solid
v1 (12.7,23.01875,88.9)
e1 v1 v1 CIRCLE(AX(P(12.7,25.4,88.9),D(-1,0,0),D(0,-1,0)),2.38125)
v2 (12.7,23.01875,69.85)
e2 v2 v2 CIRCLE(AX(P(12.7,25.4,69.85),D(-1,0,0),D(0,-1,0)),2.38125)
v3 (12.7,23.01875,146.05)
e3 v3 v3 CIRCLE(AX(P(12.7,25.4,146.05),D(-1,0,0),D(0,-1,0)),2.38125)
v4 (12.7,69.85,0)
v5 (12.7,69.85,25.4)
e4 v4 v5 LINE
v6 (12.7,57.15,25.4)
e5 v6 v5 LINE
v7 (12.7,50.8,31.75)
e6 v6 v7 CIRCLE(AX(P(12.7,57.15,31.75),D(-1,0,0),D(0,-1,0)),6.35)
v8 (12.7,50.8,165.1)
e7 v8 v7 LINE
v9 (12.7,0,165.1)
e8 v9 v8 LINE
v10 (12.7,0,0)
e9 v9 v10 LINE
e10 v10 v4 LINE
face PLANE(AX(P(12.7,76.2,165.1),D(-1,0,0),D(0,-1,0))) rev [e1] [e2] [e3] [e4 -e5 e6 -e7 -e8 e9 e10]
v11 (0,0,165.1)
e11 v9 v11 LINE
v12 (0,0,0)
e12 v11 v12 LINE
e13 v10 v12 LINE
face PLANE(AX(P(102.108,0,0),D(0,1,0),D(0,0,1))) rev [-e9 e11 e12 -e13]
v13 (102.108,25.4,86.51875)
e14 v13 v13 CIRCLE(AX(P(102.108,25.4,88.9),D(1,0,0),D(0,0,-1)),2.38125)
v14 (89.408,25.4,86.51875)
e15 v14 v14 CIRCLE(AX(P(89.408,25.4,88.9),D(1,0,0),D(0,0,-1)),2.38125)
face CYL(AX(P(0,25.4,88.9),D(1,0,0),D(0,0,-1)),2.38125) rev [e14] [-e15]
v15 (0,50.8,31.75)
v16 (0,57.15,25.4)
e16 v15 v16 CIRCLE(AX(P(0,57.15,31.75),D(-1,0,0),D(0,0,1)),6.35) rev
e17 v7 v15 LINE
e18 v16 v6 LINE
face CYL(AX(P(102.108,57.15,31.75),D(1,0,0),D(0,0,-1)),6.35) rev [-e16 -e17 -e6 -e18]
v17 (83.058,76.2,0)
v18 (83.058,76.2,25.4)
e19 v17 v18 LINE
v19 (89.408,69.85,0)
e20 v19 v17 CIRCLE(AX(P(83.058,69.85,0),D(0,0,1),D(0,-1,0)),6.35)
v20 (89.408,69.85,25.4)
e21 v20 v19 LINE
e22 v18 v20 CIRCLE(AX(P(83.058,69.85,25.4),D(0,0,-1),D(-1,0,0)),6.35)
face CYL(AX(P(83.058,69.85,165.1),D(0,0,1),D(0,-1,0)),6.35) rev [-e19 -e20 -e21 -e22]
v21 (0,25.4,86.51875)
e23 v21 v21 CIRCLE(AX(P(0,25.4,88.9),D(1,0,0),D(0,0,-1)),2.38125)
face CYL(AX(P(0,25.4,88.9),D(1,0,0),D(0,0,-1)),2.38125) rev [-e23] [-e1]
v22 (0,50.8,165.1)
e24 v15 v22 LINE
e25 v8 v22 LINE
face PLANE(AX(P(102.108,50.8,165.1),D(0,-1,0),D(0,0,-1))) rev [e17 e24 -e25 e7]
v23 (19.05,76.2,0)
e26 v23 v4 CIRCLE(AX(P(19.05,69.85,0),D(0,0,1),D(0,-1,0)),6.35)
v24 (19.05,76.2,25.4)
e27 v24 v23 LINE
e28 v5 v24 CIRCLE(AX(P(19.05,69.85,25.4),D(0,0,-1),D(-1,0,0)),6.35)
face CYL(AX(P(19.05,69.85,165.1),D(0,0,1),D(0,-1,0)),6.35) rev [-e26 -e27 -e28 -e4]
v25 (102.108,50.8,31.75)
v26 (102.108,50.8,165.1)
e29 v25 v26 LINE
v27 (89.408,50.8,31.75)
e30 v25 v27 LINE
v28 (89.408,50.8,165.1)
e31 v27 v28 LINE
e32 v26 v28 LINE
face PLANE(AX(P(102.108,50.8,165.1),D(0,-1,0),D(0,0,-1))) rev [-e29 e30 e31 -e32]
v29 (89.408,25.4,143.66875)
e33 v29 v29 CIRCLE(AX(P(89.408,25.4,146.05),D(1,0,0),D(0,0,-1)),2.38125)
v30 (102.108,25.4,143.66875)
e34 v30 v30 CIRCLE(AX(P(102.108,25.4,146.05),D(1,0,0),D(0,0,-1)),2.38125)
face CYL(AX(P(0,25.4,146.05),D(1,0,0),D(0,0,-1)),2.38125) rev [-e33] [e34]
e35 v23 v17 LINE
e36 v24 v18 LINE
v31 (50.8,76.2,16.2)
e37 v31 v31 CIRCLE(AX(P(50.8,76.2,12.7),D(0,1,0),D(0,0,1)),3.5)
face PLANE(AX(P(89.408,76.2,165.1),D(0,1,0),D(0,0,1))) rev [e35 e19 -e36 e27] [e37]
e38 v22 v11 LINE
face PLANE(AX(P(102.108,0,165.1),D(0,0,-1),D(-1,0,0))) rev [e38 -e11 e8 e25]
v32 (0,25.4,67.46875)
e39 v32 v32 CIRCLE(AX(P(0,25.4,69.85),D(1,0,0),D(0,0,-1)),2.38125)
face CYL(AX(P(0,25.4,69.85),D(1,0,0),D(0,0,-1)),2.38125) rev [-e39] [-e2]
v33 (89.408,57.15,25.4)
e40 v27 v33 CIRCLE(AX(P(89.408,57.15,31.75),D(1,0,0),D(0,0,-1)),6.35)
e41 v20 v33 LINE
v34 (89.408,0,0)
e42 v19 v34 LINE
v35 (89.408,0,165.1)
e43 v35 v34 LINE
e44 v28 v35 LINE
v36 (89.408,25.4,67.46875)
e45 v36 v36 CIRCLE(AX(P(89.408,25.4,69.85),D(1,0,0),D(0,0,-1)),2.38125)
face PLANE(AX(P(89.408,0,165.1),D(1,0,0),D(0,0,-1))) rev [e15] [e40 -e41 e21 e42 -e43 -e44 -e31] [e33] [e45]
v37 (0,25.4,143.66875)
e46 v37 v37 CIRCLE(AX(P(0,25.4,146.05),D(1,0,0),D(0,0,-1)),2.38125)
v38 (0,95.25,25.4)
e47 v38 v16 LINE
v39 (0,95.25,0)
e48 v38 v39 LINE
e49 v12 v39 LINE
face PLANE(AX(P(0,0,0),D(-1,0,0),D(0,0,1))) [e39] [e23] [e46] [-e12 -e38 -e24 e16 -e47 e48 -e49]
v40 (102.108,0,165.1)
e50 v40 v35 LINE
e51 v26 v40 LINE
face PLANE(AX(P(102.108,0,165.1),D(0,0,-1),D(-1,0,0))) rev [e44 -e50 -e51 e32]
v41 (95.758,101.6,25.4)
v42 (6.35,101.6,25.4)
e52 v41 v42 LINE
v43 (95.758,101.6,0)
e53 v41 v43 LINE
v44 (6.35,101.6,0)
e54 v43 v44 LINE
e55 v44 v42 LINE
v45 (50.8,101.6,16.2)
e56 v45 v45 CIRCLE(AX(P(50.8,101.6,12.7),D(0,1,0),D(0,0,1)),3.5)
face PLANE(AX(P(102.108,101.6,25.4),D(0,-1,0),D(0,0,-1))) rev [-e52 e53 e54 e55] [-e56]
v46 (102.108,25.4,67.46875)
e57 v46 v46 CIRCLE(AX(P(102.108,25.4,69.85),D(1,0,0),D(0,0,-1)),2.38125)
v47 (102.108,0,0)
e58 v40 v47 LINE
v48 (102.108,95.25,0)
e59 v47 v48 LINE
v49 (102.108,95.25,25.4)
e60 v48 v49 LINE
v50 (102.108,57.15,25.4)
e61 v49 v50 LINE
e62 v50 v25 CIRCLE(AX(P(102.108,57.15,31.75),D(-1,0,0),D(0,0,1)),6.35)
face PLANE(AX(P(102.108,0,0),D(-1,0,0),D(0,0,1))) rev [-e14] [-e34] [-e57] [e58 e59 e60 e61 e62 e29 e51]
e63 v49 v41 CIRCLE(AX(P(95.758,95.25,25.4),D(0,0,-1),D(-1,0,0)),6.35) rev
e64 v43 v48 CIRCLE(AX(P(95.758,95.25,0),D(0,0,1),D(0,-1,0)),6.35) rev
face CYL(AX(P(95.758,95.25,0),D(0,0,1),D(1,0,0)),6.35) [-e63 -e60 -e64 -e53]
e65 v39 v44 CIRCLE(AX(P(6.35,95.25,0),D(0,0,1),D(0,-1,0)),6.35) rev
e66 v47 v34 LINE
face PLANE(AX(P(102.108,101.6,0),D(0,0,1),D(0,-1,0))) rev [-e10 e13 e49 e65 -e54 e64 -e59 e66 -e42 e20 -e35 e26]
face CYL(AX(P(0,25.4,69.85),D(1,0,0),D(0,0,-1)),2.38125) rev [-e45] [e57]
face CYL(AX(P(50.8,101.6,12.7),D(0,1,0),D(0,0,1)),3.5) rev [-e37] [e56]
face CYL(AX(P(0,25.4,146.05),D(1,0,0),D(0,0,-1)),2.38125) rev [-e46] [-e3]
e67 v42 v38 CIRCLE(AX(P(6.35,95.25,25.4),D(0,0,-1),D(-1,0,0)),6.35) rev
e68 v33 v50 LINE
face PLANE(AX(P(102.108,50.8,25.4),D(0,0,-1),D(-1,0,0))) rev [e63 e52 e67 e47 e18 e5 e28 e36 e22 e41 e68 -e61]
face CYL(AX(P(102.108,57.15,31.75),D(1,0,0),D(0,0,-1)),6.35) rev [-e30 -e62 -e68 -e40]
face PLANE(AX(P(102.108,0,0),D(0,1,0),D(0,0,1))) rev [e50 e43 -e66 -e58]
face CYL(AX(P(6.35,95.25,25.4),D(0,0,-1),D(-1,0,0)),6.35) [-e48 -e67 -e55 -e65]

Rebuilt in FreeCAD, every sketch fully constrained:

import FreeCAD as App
import Part
import Sketcher
Q = App.Units.Quantity


def edges_at(feature, points):
    """Names of the edges that pass closest to the given points."""
    edges = feature.Shape.Edges
    near = lambda p: min(range(len(edges)), key=lambda i: edges[i].distToShape(Part.Vertex(*p))[0])
    return sorted({f"Edge{near(p) + 1}" for p in points})

doc = App.newDocument("Part")
params = doc.addObject("Spreadsheet::Sheet", "Params")
for row, (alias, value) in enumerate([
    ("sketch1_width", "4 in"),
    ("sketch1_height", "1 in"),
    ("sketch1_height2", "6.5 in"),
    ("pad1_length", "4.02 in"),
    ("sketch2_height", "3 in"),
    ("sketch2_width", "3.02 in"),
    ("hole_diameter", "7 mm"),
    ("fillet_radius", "0.25 in"),
    ("sketch4_diameter", "0.1875 in"),
], start=1):
    params.set(f"A{row}", alias)
    params.set(f"B{row}", "=" + value)
    params.setAlias(f"B{row}", alias)

body = doc.addObject("PartDesign::Body", "Body")

sketch1 = body.newObject("Sketcher::SketchObject", "Sketch")
sketch1.AttachmentSupport = (doc.getObject("YZ_Plane"), [""])
sketch1.MapMode = "FlatFace"
sketch1.addGeometry(Part.LineSegment(App.Vector(0, 165, 0), App.Vector(0, 0, 0)), False)
sketch1.addGeometry(Part.LineSegment(App.Vector(0, 0, 0), App.Vector(102, 0, 0)), False)
sketch1.addGeometry(Part.LineSegment(App.Vector(102, 0, 0), App.Vector(102, 25, 0)), False)
sketch1.addGeometry(Part.LineSegment(App.Vector(102, 25, 0), App.Vector(51, 25, 0)), False)
sketch1.addGeometry(Part.LineSegment(App.Vector(51, 25, 0), App.Vector(51, 165, 0)), False)
sketch1.addGeometry(Part.LineSegment(App.Vector(51, 165, 0), App.Vector(0, 165, 0)), False)
sketch1.addConstraint(Sketcher.Constraint("Coincident", 0, 2, 1, 1))
sketch1.addConstraint(Sketcher.Constraint("Coincident", 1, 2, 2, 1))
sketch1.addConstraint(Sketcher.Constraint("Coincident", 2, 2, 3, 1))
sketch1.addConstraint(Sketcher.Constraint("Coincident", 3, 2, 4, 1))
sketch1.addConstraint(Sketcher.Constraint("Coincident", 4, 2, 5, 1))
sketch1.addConstraint(Sketcher.Constraint("Coincident", 5, 2, 0, 1))
sketch1.addConstraint(Sketcher.Constraint("Vertical", 0))
sketch1.addConstraint(Sketcher.Constraint("Horizontal", 1))
sketch1.addConstraint(Sketcher.Constraint("Vertical", 2))
sketch1.addConstraint(Sketcher.Constraint("Horizontal", 3))
sketch1.addConstraint(Sketcher.Constraint("Vertical", 4))
sketch1.addConstraint(Sketcher.Constraint("Horizontal", 5))
sketch1.addConstraint(Sketcher.Constraint("Coincident", 0, 2, -1, 1))
sketch1.addConstraint(Sketcher.Constraint("Equal", 3, 5))
sketch1.addConstraint(Sketcher.Constraint("DistanceX", 1, 1, 1, 2, Q("4 in")))
sketch1.addConstraint(Sketcher.Constraint("DistanceY", 2, 1, 2, 2, Q("1 in")))
sketch1.addConstraint(Sketcher.Constraint("DistanceY", 0, 2, 0, 1, Q("6.5 in")))
sketch1.setExpression("Constraints[14]", "Params.sketch1_width")
sketch1.setExpression("Constraints[15]", "Params.sketch1_height")
sketch1.setExpression("Constraints[16]", "Params.sketch1_height2")
pad1 = body.newObject("PartDesign::Pad", "Pad")
pad1.Profile = sketch1
pad1.setExpression("Length", "Params.pad1_length")

sketch2 = body.newObject("Sketcher::SketchObject", "Sketch001")
sketch2.AttachmentSupport = (doc.getObject("XY_Plane"), [""])
sketch2.MapMode = "FlatFace"
sketch2.addGeometry(Part.LineSegment(App.Vector(89, 76, 0), App.Vector(89, 0, 0)), False)
sketch2.addGeometry(Part.LineSegment(App.Vector(89, 0, 0), App.Vector(13, 0, 0)), False)
sketch2.addGeometry(Part.LineSegment(App.Vector(13, 0, 0), App.Vector(13, 76, 0)), False)
sketch2.addGeometry(Part.LineSegment(App.Vector(13, 76, 0), App.Vector(89, 76, 0)), False)
sketch2.addConstraint(Sketcher.Constraint("Coincident", 0, 2, 1, 1))
sketch2.addConstraint(Sketcher.Constraint("Coincident", 1, 2, 2, 1))
sketch2.addConstraint(Sketcher.Constraint("Coincident", 2, 2, 3, 1))
sketch2.addConstraint(Sketcher.Constraint("Coincident", 3, 2, 0, 1))
sketch2.addConstraint(Sketcher.Constraint("Vertical", 0))
sketch2.addConstraint(Sketcher.Constraint("Horizontal", 1))
sketch2.addConstraint(Sketcher.Constraint("Vertical", 2))
sketch2.addConstraint(Sketcher.Constraint("Horizontal", 3))
sketch2.addConstraint(Sketcher.Constraint("PointOnObject", 0, 2, -1))
sketch2.addConstraint(Sketcher.Constraint("DistanceY", 0, 2, 0, 1, Q("3 in")))
sketch2.addConstraint(Sketcher.Constraint("DistanceX", 1, 2, 1, 1, Q("3.02 in")))
sketch2.addConstraint(Sketcher.Constraint("DistanceX", -1, 1, 1, 2, Q("0.5 in")))
sketch2.setExpression("Constraints[9]", "Params.sketch2_height")
sketch2.setExpression("Constraints[10]", "Params.sketch2_width")
pocket1 = body.newObject("PartDesign::Pocket", "Pocket")
pocket1.Profile = sketch2
pocket1.Type = "ThroughAll"
pocket1.Reversed = True

sketch3 = body.newObject("Sketcher::SketchObject", "Sketch002")
sketch3.AttachmentSupport = (doc.getObject("XZ_Plane"), [""])
sketch3.MapMode = "FlatFace"
sketch3.AttachmentOffset = App.Placement(App.Vector(0, 0, -4 * 25.4), App.Rotation())
sketch3.addGeometry(Part.Circle(App.Vector(50.8, 12.7, 0), App.Vector(0, 0, 1), 3.5), False)
sketch3.addConstraint(Sketcher.Constraint("DistanceX", -1, 1, 0, 3, Q("2 in")))
sketch3.addConstraint(Sketcher.Constraint("DistanceY", -1, 1, 0, 3, Q("0.5 in")))
sketch3.addConstraint(Sketcher.Constraint("Diameter", 0, 7.0))
doc.recompute()
hole = body.newObject("PartDesign::Hole", "Hole")
hole.Profile = sketch3
hole.ThreadType = "None"
hole.setExpression("Diameter", "Params.hole_diameter")
hole.DepthType = "ThroughAll"
hole.Reversed = True
doc.recompute()

fillet = body.newObject("PartDesign::Fillet", "Fillet")
fillet.Base = (hole, edges_at(hole, [
    (95.758, 50.8, 25.4),
    (6.35, 50.8, 25.4),
    (89.408, 76.2, 12.7),
    (12.7, 76.2, 12.7),
    (0, 101.6, 12.7),
    (102.108, 101.6, 12.7),
]))
fillet.setExpression("Radius", "Params.fillet_radius")

sketch4 = body.newObject("Sketcher::SketchObject", "Sketch003")
sketch4.AttachmentSupport = (doc.getObject("YZ_Plane"), [""])
sketch4.MapMode = "FlatFace"
sketch4.AttachmentOffset = App.Placement(App.Vector(0, 0, 4.02 * 25.4), App.Rotation())
sketch4.addGeometry(Part.Circle(App.Vector(25.4, 146.1, 0), App.Vector(0, 0, 1), 2.4), False)
sketch4.addGeometry(Part.Circle(App.Vector(25.4, 88.9, 0), App.Vector(0, 0, 1), 2.4), False)
sketch4.addGeometry(Part.Circle(App.Vector(25.4, 69.8, 0), App.Vector(0, 0, 1), 2.4), False)
sketch4.addConstraint(Sketcher.Constraint("Equal", 0, 1))
sketch4.addConstraint(Sketcher.Constraint("Equal", 1, 2))
sketch4.addConstraint(Sketcher.Constraint("Vertical", 0, 3, 1, 3))
sketch4.addConstraint(Sketcher.Constraint("Vertical", 1, 3, 2, 3))
sketch4.addConstraint(Sketcher.Constraint("Diameter", 0, Q("0.1875 in")))
sketch4.addConstraint(Sketcher.Constraint("DistanceX", -1, 1, 0, 3, Q("1 in")))
sketch4.addConstraint(Sketcher.Constraint("DistanceY", 2, 3, 0, 3, Q("3 in")))
sketch4.addConstraint(Sketcher.Constraint("DistanceY", -1, 1, 1, 3, Q("3.5 in")))
sketch4.addConstraint(Sketcher.Constraint("DistanceY", -1, 1, 0, 3, Q("5.75 in")))
sketch4.setExpression("Constraints[4]", "Params.sketch4_diameter")
pocket2 = body.newObject("PartDesign::Pocket", "Pocket001")
pocket2.Profile = sketch4
pocket2.Type = "ThroughAll"

doc.recompute()
